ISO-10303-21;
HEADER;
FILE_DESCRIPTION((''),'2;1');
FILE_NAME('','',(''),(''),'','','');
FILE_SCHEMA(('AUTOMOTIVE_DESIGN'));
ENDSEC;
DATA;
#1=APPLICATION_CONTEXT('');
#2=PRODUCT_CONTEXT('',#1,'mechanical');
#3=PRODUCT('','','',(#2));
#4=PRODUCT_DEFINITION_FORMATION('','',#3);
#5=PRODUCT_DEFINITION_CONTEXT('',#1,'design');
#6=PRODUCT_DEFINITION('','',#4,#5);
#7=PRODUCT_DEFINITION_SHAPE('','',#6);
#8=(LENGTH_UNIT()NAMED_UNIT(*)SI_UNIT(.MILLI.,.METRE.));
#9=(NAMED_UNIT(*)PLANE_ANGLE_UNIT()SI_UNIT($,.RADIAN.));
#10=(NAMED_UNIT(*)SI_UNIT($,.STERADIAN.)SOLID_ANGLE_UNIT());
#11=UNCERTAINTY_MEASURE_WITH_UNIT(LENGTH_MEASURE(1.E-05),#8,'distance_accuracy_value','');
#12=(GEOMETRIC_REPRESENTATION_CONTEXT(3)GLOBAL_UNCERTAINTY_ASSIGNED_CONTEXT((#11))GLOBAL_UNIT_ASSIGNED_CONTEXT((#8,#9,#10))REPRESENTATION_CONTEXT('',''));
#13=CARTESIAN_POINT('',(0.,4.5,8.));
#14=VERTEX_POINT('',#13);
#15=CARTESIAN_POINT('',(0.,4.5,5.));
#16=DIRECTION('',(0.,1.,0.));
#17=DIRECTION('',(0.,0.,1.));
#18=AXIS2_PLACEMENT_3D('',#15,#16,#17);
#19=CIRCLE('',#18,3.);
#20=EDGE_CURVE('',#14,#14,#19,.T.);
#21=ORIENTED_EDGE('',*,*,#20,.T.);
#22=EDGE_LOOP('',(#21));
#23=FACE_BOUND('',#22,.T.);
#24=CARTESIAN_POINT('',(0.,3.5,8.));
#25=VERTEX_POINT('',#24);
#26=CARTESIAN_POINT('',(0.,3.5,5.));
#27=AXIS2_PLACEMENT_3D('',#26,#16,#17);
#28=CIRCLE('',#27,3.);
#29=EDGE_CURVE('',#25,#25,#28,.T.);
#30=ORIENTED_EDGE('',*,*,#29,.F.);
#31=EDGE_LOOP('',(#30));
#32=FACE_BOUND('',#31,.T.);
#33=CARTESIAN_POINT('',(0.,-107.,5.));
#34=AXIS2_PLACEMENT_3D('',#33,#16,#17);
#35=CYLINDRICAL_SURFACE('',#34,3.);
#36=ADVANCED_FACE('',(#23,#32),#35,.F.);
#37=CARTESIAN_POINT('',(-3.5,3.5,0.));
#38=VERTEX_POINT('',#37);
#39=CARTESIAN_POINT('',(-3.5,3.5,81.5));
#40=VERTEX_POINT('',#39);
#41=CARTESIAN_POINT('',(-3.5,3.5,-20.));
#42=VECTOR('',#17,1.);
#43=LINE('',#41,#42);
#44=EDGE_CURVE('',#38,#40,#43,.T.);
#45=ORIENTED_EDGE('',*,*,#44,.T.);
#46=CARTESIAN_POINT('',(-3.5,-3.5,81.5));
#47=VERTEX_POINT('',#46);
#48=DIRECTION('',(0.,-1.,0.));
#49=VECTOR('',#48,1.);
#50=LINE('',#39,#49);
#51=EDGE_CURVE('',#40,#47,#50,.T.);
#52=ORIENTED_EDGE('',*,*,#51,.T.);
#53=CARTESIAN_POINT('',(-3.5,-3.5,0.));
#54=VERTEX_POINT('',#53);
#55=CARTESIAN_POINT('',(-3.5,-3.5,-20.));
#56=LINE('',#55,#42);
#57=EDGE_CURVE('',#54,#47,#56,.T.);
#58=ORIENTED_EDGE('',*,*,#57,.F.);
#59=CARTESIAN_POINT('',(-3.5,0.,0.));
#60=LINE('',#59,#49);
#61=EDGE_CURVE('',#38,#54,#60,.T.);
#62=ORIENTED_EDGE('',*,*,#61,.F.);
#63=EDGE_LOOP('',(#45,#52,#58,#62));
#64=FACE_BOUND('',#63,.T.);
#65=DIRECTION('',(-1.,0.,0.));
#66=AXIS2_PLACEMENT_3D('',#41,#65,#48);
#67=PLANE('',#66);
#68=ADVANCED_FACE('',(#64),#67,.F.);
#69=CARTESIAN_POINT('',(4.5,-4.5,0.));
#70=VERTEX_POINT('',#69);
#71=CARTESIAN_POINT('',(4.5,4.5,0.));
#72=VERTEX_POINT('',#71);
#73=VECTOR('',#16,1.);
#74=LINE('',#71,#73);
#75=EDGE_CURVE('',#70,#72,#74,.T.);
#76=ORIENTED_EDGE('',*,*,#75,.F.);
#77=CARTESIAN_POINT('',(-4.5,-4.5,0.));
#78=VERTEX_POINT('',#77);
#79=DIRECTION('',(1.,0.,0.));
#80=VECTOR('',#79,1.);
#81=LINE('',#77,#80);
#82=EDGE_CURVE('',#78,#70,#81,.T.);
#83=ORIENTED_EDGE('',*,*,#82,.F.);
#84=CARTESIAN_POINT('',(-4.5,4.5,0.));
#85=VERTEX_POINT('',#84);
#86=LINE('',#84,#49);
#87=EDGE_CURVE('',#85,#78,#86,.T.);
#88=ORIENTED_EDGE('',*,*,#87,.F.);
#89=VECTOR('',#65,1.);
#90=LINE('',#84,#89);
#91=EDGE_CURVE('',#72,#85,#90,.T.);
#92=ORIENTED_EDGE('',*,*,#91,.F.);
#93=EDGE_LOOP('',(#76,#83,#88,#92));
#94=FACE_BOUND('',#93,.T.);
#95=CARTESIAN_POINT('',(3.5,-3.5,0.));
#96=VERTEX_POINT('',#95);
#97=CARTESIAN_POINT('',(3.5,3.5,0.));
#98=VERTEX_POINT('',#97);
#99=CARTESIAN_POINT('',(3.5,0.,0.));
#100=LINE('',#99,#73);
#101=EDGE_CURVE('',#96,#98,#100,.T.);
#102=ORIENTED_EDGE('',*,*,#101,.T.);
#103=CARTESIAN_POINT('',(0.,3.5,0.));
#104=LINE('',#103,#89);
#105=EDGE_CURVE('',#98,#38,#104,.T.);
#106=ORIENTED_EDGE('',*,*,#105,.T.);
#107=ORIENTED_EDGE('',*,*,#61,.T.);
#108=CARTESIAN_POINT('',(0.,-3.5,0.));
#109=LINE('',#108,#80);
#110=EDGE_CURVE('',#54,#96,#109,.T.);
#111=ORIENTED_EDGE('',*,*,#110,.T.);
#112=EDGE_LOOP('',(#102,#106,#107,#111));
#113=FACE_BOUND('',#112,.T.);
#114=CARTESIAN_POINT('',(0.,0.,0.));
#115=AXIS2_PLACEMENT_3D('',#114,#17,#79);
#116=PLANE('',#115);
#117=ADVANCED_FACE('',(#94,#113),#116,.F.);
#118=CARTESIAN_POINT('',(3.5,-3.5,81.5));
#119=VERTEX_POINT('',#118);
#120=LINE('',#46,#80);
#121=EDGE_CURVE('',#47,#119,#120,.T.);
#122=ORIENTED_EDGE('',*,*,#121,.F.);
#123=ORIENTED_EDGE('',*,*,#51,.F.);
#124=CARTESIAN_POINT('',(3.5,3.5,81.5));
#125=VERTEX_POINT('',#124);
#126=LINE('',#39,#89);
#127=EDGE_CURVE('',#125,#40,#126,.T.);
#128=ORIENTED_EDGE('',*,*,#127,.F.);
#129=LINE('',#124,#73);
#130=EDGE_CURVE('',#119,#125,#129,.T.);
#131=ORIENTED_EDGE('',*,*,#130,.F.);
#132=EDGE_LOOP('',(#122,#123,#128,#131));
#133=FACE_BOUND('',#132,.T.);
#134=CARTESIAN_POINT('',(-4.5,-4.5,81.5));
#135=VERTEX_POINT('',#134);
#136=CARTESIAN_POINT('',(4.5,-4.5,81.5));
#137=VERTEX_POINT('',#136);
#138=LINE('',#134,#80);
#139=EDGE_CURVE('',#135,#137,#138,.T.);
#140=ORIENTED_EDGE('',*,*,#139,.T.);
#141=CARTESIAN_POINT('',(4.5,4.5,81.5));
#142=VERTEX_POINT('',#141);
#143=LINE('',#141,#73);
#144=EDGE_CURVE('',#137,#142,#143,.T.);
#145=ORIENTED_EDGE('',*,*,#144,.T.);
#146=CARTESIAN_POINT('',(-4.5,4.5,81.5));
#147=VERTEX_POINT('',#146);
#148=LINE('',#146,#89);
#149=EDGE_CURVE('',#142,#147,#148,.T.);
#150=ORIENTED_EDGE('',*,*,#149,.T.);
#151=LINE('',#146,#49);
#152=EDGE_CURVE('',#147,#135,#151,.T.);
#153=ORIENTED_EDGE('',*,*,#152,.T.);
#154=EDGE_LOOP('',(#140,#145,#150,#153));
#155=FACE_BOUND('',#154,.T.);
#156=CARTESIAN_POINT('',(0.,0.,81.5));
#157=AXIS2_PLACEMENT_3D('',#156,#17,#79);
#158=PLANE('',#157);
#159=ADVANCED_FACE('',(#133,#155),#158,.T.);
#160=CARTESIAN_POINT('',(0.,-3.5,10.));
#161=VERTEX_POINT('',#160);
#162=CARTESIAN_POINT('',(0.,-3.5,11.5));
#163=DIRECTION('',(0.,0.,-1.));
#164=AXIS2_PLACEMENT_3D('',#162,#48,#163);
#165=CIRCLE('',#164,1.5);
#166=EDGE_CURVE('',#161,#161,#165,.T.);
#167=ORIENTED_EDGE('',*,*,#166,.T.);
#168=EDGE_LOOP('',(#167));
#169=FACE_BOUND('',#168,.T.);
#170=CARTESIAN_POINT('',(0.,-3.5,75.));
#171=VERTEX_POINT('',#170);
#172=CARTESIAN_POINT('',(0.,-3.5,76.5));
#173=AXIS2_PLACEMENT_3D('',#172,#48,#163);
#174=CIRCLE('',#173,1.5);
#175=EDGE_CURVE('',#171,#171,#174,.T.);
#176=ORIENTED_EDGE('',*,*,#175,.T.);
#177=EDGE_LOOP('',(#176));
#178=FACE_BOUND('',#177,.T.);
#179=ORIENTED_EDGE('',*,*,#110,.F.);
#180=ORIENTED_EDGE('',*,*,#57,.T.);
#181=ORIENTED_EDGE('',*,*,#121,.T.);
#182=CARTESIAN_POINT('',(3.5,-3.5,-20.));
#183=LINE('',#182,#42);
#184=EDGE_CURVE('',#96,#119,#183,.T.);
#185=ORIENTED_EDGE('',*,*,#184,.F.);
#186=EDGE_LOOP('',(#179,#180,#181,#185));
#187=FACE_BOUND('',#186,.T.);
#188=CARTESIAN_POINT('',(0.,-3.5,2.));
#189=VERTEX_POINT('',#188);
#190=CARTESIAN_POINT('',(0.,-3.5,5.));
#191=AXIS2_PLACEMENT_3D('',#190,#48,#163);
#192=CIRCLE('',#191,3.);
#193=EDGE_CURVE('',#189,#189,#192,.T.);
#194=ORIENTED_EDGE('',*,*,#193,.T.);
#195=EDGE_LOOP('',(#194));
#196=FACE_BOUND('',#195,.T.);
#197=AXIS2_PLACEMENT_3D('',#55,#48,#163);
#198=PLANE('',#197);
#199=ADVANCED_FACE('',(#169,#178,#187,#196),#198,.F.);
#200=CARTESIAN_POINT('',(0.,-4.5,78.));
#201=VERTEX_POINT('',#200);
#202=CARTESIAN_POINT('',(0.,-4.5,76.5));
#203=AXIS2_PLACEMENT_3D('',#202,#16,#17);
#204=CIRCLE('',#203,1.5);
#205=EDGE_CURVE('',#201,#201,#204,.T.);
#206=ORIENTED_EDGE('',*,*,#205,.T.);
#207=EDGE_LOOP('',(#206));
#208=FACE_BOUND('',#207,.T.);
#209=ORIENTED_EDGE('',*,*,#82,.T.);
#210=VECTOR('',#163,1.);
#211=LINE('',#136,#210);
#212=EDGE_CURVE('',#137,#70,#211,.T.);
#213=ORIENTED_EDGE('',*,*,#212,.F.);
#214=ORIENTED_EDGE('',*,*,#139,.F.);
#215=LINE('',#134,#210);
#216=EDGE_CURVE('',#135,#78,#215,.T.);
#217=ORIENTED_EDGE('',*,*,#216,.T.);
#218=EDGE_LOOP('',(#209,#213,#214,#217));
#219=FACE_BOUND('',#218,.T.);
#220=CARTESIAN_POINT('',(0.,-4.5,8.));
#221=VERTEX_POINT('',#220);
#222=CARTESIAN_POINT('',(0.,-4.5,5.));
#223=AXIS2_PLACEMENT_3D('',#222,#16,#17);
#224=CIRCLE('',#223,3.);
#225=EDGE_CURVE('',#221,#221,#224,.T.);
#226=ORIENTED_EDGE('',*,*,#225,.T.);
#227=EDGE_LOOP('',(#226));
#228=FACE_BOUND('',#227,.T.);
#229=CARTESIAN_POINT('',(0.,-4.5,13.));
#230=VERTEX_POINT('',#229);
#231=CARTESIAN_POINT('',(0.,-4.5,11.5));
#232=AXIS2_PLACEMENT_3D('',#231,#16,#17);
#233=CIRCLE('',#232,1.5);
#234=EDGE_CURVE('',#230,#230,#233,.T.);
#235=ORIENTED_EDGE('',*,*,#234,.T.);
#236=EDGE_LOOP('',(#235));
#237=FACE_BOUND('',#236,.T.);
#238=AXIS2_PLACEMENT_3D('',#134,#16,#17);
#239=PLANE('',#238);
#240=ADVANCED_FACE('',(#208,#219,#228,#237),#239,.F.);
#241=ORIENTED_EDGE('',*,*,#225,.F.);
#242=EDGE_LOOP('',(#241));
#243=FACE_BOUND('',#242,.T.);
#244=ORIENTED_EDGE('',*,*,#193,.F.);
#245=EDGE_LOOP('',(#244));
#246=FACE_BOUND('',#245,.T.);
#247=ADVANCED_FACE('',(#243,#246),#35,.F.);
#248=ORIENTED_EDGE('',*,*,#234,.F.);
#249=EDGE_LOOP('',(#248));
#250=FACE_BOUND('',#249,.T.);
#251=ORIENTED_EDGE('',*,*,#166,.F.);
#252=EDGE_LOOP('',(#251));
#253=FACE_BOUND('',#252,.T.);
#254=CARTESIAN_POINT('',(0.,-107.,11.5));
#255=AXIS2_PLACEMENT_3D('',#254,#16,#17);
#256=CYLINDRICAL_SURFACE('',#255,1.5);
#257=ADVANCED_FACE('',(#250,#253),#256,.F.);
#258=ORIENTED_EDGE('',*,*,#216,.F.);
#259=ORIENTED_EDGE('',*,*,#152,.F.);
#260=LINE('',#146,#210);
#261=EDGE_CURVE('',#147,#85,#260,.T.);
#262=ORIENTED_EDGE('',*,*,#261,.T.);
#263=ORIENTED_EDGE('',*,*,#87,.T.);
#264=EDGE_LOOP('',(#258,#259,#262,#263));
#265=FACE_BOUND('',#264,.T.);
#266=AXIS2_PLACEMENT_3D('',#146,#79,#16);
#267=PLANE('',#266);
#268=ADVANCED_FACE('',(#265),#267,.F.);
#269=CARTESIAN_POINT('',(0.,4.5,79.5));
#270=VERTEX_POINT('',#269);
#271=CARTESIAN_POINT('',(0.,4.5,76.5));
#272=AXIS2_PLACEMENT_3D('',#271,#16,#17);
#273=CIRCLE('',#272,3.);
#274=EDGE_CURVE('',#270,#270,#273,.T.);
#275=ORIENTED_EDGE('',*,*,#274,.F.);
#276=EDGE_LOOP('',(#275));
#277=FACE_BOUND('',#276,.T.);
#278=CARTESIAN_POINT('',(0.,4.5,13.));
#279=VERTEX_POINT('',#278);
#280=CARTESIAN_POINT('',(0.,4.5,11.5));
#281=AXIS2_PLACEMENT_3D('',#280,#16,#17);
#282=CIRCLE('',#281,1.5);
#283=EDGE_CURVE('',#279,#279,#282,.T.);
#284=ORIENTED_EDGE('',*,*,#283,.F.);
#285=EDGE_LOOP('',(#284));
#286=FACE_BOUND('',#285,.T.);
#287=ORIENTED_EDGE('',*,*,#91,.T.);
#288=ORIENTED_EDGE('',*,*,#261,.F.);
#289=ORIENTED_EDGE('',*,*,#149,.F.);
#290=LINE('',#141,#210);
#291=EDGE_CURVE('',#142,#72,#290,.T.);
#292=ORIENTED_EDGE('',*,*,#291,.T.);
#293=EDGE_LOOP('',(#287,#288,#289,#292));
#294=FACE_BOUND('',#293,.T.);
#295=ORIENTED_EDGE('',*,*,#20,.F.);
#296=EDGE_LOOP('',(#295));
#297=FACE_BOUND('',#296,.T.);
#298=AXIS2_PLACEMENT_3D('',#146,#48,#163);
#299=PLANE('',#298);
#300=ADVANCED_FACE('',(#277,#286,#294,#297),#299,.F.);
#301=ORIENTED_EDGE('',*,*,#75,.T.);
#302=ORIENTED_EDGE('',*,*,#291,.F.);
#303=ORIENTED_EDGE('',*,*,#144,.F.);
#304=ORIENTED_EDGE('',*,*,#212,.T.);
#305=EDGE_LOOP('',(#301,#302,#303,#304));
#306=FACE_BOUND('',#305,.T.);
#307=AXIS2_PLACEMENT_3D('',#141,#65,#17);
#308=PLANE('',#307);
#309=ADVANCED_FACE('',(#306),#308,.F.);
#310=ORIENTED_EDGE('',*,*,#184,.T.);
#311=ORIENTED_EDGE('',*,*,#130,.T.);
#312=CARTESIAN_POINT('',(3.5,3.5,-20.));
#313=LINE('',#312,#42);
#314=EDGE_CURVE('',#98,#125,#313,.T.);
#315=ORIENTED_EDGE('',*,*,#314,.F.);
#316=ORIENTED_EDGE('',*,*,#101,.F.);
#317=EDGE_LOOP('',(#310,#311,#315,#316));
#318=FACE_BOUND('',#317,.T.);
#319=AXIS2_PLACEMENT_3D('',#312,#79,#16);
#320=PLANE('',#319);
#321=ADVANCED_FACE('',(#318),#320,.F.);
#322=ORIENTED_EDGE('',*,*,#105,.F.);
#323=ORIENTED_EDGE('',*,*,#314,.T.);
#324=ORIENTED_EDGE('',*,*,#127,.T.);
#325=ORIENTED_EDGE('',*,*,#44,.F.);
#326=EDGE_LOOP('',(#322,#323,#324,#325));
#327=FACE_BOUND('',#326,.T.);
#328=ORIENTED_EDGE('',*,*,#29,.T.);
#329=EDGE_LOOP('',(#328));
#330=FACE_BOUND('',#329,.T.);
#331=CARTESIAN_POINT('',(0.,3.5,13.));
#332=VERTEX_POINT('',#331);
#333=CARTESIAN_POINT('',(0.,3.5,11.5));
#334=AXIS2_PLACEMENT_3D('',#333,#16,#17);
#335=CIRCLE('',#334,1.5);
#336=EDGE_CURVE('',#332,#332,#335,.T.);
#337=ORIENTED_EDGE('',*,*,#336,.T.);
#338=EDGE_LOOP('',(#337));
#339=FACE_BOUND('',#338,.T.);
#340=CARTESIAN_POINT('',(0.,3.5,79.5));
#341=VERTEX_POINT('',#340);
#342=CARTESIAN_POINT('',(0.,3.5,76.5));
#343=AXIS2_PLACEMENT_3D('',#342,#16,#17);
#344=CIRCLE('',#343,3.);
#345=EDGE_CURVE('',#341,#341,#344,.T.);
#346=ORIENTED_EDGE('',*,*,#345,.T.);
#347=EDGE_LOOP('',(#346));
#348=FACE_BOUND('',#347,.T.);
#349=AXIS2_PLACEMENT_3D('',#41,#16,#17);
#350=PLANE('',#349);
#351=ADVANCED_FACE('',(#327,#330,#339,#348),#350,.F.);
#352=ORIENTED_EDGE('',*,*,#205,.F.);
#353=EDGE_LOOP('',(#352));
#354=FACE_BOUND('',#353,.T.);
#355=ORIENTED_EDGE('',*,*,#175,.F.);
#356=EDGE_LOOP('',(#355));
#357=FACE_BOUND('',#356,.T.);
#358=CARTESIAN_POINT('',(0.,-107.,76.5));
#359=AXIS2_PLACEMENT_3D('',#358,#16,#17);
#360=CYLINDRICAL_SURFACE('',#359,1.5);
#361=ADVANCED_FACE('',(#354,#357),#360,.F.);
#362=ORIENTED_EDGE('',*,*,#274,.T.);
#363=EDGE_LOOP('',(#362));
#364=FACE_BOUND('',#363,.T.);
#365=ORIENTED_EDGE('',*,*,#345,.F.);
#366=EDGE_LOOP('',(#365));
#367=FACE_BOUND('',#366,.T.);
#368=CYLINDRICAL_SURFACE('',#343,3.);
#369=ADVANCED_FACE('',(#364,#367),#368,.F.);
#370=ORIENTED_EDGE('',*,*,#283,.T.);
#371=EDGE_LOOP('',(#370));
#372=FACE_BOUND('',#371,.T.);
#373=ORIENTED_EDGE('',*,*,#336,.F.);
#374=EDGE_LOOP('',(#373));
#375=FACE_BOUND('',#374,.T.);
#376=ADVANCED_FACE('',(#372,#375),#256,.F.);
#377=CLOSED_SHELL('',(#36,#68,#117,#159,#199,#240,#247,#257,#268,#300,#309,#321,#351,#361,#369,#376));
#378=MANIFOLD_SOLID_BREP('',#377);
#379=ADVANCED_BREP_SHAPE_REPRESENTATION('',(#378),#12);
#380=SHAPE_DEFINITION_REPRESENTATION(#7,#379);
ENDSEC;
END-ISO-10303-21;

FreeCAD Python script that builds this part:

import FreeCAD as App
import Part
import Sketcher
from FreeCAD import Vector

doc = App.newDocument("Part")
body = doc.addObject("PartDesign::Body", "Body")

# Sketch on XY plane
sketch1 = body.newObject("Sketcher::SketchObject", "Sketch")
sketch1.AttachmentSupport = (doc.getObject("XY_Plane"), [""])
sketch1.MapMode = "FlatFace"
sketch1.addGeometry([
    Part.LineSegment(Vector(-4, 4, 0), Vector(-4, -4, 0)),
    Part.LineSegment(Vector(-4, -4, 0), Vector(4, -4, 0)),
    Part.LineSegment(Vector(4, -4, 0), Vector(4, 4, 0)),
    Part.LineSegment(Vector(4, 4, 0), Vector(-4, 4, 0)),
], False)
sketch1.addConstraint([
    Sketcher.Constraint("Coincident", 0, 2, 1, 1),
    Sketcher.Constraint("Coincident", 1, 2, 2, 1),
    Sketcher.Constraint("Coincident", 2, 2, 3, 1),
    Sketcher.Constraint("Coincident", 3, 2, 0, 1),
    Sketcher.Constraint("Vertical", 0),
    Sketcher.Constraint("Horizontal", 1),
    Sketcher.Constraint("Vertical", 2),
    Sketcher.Constraint("Horizontal", 3),
    Sketcher.Constraint("Symmetric", 0, 2, 2, 2, -1, 1),
    Sketcher.Constraint("Equal", 3, 0),
    Sketcher.Constraint("DistanceX", 1, 1, 1, 2, 9.0),
])
pad1 = body.newObject("PartDesign::Pad", "Pad")
pad1.Profile = sketch1
pad1.Length = 81.5

# Sketch on XY plane
sketch2 = body.newObject("Sketcher::SketchObject", "Sketch001")
sketch2.AttachmentSupport = (doc.getObject("XY_Plane"), [""])
sketch2.MapMode = "FlatFace"
sketch2.AttachmentOffset = App.Placement(Vector(0, 0, 81.5), App.Rotation())
sketch2.addGeometry([
    Part.LineSegment(Vector(-4, 4, 0), Vector(-4, -4, 0)),
    Part.LineSegment(Vector(-4, -4, 0), Vector(4, -4, 0)),
    Part.LineSegment(Vector(4, -4, 0), Vector(4, 4, 0)),
    Part.LineSegment(Vector(4, 4, 0), Vector(-4, 4, 0)),
], False)
sketch2.addConstraint([
    Sketcher.Constraint("Coincident", 0, 2, 1, 1),
    Sketcher.Constraint("Coincident", 1, 2, 2, 1),
    Sketcher.Constraint("Coincident", 2, 2, 3, 1),
    Sketcher.Constraint("Coincident", 3, 2, 0, 1),
    Sketcher.Constraint("Vertical", 0),
    Sketcher.Constraint("Horizontal", 1),
    Sketcher.Constraint("Vertical", 2),
    Sketcher.Constraint("Horizontal", 3),
    Sketcher.Constraint("Symmetric", 0, 2, 2, 2, -1, 1),
    Sketcher.Constraint("Equal", 3, 0),
    Sketcher.Constraint("DistanceX", 1, 1, 1, 2, 7.0),
])
pocket1 = body.newObject("PartDesign::Pocket", "Pocket")
pocket1.Profile = sketch2
pocket1.Length = 101.5

# Sketch on XZ plane
sketch3 = body.newObject("Sketcher::SketchObject", "Sketch002")
sketch3.AttachmentSupport = (doc.getObject("XZ_Plane"), [""])
sketch3.MapMode = "FlatFace"
sketch3.AttachmentOffset = App.Placement(Vector(0, 0, -4.5), App.Rotation())
sketch3.addGeometry([
    Part.Circle(Vector(0, 5, 0), Vector(0, 0, 1), 3),
    Part.Circle(Vector(0, 11.5, 0), Vector(0, 0, 1), 1.5),
    Part.Circle(Vector(0, 76.5, 0), Vector(0, 0, 1), 1.5),
], False)
sketch3.addConstraint([
    Sketcher.Constraint("Equal", 1, 2),
    Sketcher.Constraint("PointOnObject", 0, 3, -2),
    Sketcher.Constraint("PointOnObject", 1, 3, -2),
    Sketcher.Constraint("PointOnObject", 2, 3, -2),
    Sketcher.Constraint("Diameter", 0, 6.0),
    Sketcher.Constraint("Diameter", 1, 3.0),
    Sketcher.Constraint("DistanceY", -1, 1, 0, 3, 5.0),
    Sketcher.Constraint("DistanceY", 1, 3, 2, 3, 65.0),
    Sketcher.Constraint("DistanceY", -1, 1, 1, 3, 11.5),
])
pocket2 = body.newObject("PartDesign::Pocket", "Pocket001")
pocket2.Profile = sketch3
pocket2.Length = 111.5
pocket2.Reversed = True

# Sketch on XZ plane
sketch4 = body.newObject("Sketcher::SketchObject", "Sketch003")
sketch4.AttachmentSupport = (doc.getObject("XZ_Plane"), [""])
sketch4.MapMode = "FlatFace"
sketch4.AttachmentOffset = App.Placement(Vector(0, 0, -4.5), App.Rotation())
sketch4.addGeometry(Part.Circle(Vector(0, 76.5, 0), Vector(0, 0, 1), 3), False)
sketch4.addConstraint([
    Sketcher.Constraint("PointOnObject", 0, 3, -2),
    Sketcher.Constraint("Diameter", 0, 6.0),
    Sketcher.Constraint("DistanceY", -1, 1, 0, 3, 76.5),
])
pocket3 = body.newObject("PartDesign::Pocket", "Pocket002")
pocket3.Profile = sketch4
pocket3.Length = 1
pocket3.Reversed = True

doc.recompute()
